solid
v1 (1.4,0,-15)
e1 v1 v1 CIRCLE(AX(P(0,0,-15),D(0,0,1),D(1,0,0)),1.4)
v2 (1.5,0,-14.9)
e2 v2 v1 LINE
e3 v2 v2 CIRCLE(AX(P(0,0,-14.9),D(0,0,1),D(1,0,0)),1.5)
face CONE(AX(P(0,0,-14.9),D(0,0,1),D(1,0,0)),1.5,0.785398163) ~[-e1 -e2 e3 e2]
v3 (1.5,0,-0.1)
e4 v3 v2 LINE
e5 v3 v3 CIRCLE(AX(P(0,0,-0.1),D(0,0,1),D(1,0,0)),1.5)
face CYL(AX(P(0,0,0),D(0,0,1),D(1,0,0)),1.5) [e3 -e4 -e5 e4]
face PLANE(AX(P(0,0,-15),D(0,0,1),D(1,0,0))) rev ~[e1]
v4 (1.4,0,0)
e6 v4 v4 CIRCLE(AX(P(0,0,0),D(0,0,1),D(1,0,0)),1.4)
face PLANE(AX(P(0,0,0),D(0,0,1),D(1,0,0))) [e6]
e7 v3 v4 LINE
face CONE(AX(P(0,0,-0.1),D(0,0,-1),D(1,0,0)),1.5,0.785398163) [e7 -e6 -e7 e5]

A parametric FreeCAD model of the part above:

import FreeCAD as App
import Part
import Sketcher
Q = App.Units.Quantity


def edges_at(feature, points):
    """Names of the edges that pass closest to the given points."""
    edges = feature.Shape.Edges
    near = lambda p: min(range(len(edges)), key=lambda i: edges[i].distToShape(Part.Vertex(*p))[0])
    return sorted({f"Edge{near(p) + 1}" for p in points})

doc = App.newDocument("Part")
params = doc.addObject("Spreadsheet::Sheet", "Params")
for row, (alias, value) in enumerate([
    ("sketch1_diameter", "3 mm"),
    ("pad1_length", "15 mm"),
    ("chamfer_size", "0.1 mm"),
], start=1):
    params.set(f"A{row}", alias)
    params.set(f"B{row}", "=" + value)
    params.setAlias(f"B{row}", alias)

body = doc.addObject("PartDesign::Body", "Body")

sketch1 = body.newObject("Sketcher::SketchObject", "Sketch")
sketch1.AttachmentSupport = (doc.getObject("XY_Plane"), [""])
sketch1.MapMode = "FlatFace"
sketch1.addGeometry(Part.Circle(App.Vector(0, 0, 0), App.Vector(0, 0, 1), 1.5), False)
sketch1.addConstraint([
    Sketcher.Constraint("Coincident", 0, 3, -1, 1),
    Sketcher.Constraint("Diameter", 0, Q("3 mm")),
])
sketch1.setExpression("Constraints[1]", "Params.sketch1_diameter")
pad1 = body.newObject("PartDesign::Pad", "Pad")
pad1.Profile = sketch1
pad1.setExpression("Length", "Params.pad1_length")
pad1.Reversed = True
doc.recompute()

chamfer = body.newObject("PartDesign::Chamfer", "Chamfer")
chamfer.Base = (pad1, edges_at(pad1, [(-1.5, 0, 0), (-1.5, 0, -15)]))
chamfer.setExpression("Size", "Params.chamfer_size")

doc.recompute()
